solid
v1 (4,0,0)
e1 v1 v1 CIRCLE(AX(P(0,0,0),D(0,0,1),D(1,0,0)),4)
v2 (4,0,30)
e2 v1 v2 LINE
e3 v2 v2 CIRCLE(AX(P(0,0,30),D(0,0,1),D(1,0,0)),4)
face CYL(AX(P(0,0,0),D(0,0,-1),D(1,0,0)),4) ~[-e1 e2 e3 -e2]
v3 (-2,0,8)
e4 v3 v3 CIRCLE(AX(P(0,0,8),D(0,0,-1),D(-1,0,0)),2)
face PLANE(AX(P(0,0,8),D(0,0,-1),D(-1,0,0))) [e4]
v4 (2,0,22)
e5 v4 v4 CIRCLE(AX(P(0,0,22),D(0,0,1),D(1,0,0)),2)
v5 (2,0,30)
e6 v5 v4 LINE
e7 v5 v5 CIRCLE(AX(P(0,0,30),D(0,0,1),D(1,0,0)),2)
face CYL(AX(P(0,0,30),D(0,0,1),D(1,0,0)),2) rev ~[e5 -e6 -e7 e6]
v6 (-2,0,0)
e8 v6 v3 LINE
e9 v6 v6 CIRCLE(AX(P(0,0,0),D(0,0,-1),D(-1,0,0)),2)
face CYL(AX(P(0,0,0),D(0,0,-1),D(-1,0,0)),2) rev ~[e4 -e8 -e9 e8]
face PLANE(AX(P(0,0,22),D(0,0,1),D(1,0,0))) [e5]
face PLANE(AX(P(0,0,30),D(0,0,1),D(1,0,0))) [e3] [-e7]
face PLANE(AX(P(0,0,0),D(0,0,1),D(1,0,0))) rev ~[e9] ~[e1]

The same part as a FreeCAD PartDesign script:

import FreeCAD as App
import Part
import Sketcher
from FreeCAD import Vector

doc = App.newDocument("Part")
body = doc.addObject("PartDesign::Body", "Body")

sketch1 = body.newObject("Sketcher::SketchObject", "Sketch")
sketch1.AttachmentSupport = (doc.getObject("XY_Plane"), [""])
sketch1.MapMode = "FlatFace"
sketch1.addGeometry(Part.Circle(Vector(0, 0, 0), Vector(0, 0, 1), 4), False)
sketch1.addConstraint([
    Sketcher.Constraint("Coincident", 0, 3, -1, 1),
    Sketcher.Constraint("Diameter", 0, 8.0),
])
pad1 = body.newObject("PartDesign::Pad", "Pad")
pad1.Profile = sketch1
pad1.Length = 30

sketch2 = body.newObject("Sketcher::SketchObject", "Sketch001")
sketch2.AttachmentSupport = (doc.getObject("XY_Plane"), [""])
sketch2.MapMode = "FlatFace"
sketch2.AttachmentOffset = App.Placement(Vector(0, 0, 30), App.Rotation())
sketch2.addGeometry(Part.Circle(Vector(0, 0, 0), Vector(0, 0, 1), 2), False)
sketch2.addConstraint([
    Sketcher.Constraint("Coincident", 0, 3, -1, 1),
    Sketcher.Constraint("Diameter", 0, 4.0),
])
pocket1 = body.newObject("PartDesign::Pocket", "Pocket")
pocket1.Profile = sketch2
pocket1.Length = 8

sketch3 = body.newObject("Sketcher::SketchObject", "Sketch002")
sketch3.AttachmentSupport = (doc.getObject("XY_Plane"), [""])
sketch3.MapMode = "FlatFace"
sketch3.addGeometry(Part.Circle(Vector(0, 0, 0), Vector(0, 0, 1), 2), False)
sketch3.addConstraint([
    Sketcher.Constraint("Coincident", 0, 3, -1, 1),
    Sketcher.Constraint("Diameter", 0, 4.0),
])
pocket2 = body.newObject("PartDesign::Pocket", "Pocket001")
pocket2.Profile = sketch3
pocket2.Length = 8
pocket2.Reversed = True

doc.recompute()
